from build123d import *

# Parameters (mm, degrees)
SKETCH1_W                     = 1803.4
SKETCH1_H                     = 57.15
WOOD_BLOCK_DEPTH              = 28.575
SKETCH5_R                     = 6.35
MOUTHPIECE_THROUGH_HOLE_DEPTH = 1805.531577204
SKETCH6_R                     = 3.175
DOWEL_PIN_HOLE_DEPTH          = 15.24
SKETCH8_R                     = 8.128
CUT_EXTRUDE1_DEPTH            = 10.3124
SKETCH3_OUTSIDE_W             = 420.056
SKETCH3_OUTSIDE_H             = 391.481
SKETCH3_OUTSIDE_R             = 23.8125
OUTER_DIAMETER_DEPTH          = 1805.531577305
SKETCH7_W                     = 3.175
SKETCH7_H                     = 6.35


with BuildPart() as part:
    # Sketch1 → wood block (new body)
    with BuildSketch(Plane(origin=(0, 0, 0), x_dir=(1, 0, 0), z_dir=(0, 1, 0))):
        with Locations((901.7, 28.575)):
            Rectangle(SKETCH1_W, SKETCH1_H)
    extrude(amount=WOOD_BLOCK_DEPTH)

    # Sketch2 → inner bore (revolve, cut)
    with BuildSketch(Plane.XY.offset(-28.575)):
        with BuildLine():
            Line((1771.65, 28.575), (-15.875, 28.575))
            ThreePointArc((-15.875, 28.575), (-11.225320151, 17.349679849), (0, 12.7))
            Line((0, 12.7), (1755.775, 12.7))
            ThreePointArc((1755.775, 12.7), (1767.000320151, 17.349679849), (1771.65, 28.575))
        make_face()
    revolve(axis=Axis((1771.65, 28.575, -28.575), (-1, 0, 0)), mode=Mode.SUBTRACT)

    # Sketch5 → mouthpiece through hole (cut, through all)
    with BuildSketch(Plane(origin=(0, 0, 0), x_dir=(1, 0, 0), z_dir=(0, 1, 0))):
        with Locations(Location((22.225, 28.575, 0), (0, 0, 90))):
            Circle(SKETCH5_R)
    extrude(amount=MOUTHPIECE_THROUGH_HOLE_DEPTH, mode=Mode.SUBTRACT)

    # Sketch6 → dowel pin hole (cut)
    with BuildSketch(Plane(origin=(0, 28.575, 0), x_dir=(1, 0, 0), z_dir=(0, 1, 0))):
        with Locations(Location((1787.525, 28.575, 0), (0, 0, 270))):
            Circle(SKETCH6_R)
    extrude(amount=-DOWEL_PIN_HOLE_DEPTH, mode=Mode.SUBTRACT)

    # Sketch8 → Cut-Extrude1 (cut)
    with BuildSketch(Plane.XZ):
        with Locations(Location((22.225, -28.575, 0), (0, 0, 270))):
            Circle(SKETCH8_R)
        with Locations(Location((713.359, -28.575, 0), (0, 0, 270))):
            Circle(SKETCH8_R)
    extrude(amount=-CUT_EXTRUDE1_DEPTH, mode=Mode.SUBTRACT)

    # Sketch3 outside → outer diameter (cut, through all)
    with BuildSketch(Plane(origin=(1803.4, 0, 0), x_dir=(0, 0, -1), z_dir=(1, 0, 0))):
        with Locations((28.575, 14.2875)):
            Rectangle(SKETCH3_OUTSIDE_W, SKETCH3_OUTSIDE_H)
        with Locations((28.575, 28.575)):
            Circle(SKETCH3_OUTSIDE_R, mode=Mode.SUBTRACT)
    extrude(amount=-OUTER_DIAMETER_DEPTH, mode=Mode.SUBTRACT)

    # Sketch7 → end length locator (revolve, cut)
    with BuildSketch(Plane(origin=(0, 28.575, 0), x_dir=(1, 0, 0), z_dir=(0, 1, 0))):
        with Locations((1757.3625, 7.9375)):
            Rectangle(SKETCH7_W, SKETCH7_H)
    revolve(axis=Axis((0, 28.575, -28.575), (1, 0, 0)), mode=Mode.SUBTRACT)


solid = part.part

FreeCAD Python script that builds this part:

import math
import FreeCAD as App
import Part
import Sketcher
Q = App.Units.Quantity


def add_polygon(sketch, points):
    """Adds a closed chain of lines whose ends are joined by coincident constraints."""
    first, n = sketch.GeometryCount, len(points)
    for a, b in zip(points, points[1:] + points[:1]):
        sketch.addGeometry(Part.LineSegment(App.Vector(*a, 0), App.Vector(*b, 0)), False)
    for i in range(n):
        sketch.addConstraint(Sketcher.Constraint("Coincident", first + i, 2, first + (i + 1) % n, 1))

doc = App.newDocument("Part")
body = doc.addObject("PartDesign::Body", "Body")

# Sketch on XZ plane
sketch1 = body.newObject("Sketcher::SketchObject", "Sketch")
sketch1.AttachmentSupport = (doc.getObject("XZ_Plane"), [""])
sketch1.MapMode = "FlatFace"
add_polygon(sketch1, [(0, -57), (0, 0), (1803, 0), (1803, -57)])  # lines 0-3
sketch1.addConstraint([
    Sketcher.Constraint("Vertical", 0),
    Sketcher.Constraint("Horizontal", 1),
    Sketcher.Constraint("Vertical", 2),
    Sketcher.Constraint("Horizontal", 3),
    Sketcher.Constraint("Coincident", 0, 2, -1, 1),
    Sketcher.Constraint("DistanceX", 1, 1, 1, 2, Q("71 in")),
    Sketcher.Constraint("DistanceY", 0, 1, 0, 2, Q("2.25 in")),
])
pad1 = body.newObject("PartDesign::Pad", "Pad")
pad1.Profile = sketch1
pad1.Length = Q("1.125 in")
pad1.Reversed = True

# Sketch on XY plane
sketch2 = body.newObject("Sketcher::SketchObject", "Sketch001")
sketch2.AttachmentSupport = (doc.getObject("XY_Plane"), [""])
sketch2.MapMode = "FlatFace"
sketch2.AttachmentOffset = App.Placement(App.Vector(0, 0, -1.125 * 25.4), App.Rotation())
sketch2.addGeometry([
    Part.LineSegment(App.Vector(1772, 29, 0), App.Vector(-16, 29, 0)),
    Part.ArcOfCircle(Part.Circle(App.Vector(0, 29, 0), App.Vector(0, 0, 1), 16), math.radians(-180), math.radians(-90)),
    Part.LineSegment(App.Vector(0, 13, 0), App.Vector(1756, 13, 0)),
    Part.ArcOfCircle(Part.Circle(App.Vector(1756, 29, 0), App.Vector(0, 0, 1), 16), math.radians(-90), math.radians(0)),
], False)
sketch2.addGeometry(Part.LineSegment(App.Vector(1772, 29, 0), App.Vector(-16, 29, 0)), True)  # axis
sketch2.addConstraint([
    Sketcher.Constraint("Coincident", 0, 2, 1, 1),
    Sketcher.Constraint("Tangent", 1, 2, 2, 1),
    Sketcher.Constraint("Tangent", 2, 2, 3, 1),
    Sketcher.Constraint("Coincident", 3, 2, 0, 1),
    Sketcher.Constraint("Horizontal", 0),
    Sketcher.Constraint("Horizontal", 2),
    Sketcher.Constraint("Horizontal", 4),
    Sketcher.Constraint("Coincident", 4, 1, 3, 2),
    Sketcher.Constraint("Equal", 1, 3),
    Sketcher.Constraint("PointOnObject", 1, 3, -2),
    Sketcher.Constraint("Horizontal", 3, 3, 0, 2),
    Sketcher.Constraint("Equal", 0, 4),
    Sketcher.Constraint("Radius", 1, Q("0.625 in")),
    Sketcher.Constraint("DistanceY", -1, 1, 1, 2, Q("0.5 in")),
    Sketcher.Constraint("DistanceX", 0, 2, 0, 1, Q("70.375 in")),
])
groove = body.newObject("PartDesign::Groove", "Groove")
groove.Profile = sketch2
groove.ReferenceAxis = (sketch2, ["Axis0"])
groove.Angle = 360

# Sketch on XZ plane
sketch3 = body.newObject("Sketcher::SketchObject", "Sketch002")
sketch3.AttachmentSupport = (doc.getObject("XZ_Plane"), [""])
sketch3.MapMode = "FlatFace"
sketch3.addGeometry(Part.Circle(App.Vector(22, -29, 0), App.Vector(0, 0, 1), 6), False)
sketch3.addConstraint([
    Sketcher.Constraint("Diameter", 0, Q("0.5 in")),
    Sketcher.Constraint("DistanceX", -1, 1, 0, 3, Q("0.875 in")),
    Sketcher.Constraint("DistanceY", 0, 3, -1, 1, Q("1.125 in")),
])
pocket1 = body.newObject("PartDesign::Pocket", "Pocket")
pocket1.Profile = sketch3
pocket1.Type = "ThroughAll"

# Sketch on XZ plane
sketch4 = body.newObject("Sketcher::SketchObject", "Sketch003")
sketch4.AttachmentSupport = (doc.getObject("XZ_Plane"), [""])
sketch4.MapMode = "FlatFace"
sketch4.AttachmentOffset = App.Placement(App.Vector(0, 0, -1.125 * 25.4), App.Rotation())
sketch4.addGeometry(Part.Circle(App.Vector(1787.5, -28.6, 0), App.Vector(0, 0, 1), 3.2), False)
sketch4.addConstraint([
    Sketcher.Constraint("Diameter", 0, Q("0.25 in")),
    Sketcher.Constraint("DistanceX", -1, 1, 0, 3, Q("70.375 in")),
    Sketcher.Constraint("DistanceY", 0, 3, -1, 1, Q("1.125 in")),
])
pocket2 = body.newObject("PartDesign::Pocket", "Pocket001")
pocket2.Profile = sketch4
pocket2.Length = Q("0.6 in")
pocket2.Reversed = True

# Sketch on XZ plane
sketch5 = body.newObject("Sketcher::SketchObject", "Sketch004")
sketch5.AttachmentSupport = (doc.getObject("XZ_Plane"), [""])
sketch5.MapMode = "FlatFace"
sketch5.addGeometry([
    Part.Circle(App.Vector(22, -29, 0), App.Vector(0, 0, 1), 8),
    Part.Circle(App.Vector(713, -29, 0), App.Vector(0, 0, 1), 8),
], False)
sketch5.addConstraint([
    Sketcher.Constraint("Equal", 0, 1),
    Sketcher.Constraint("Horizontal", 0, 3, 1, 3),
    Sketcher.Constraint("Diameter", 0, Q("0.64 in")),
    Sketcher.Constraint("DistanceX", 0, 3, 1, 3, Q("27.21 in")),
    Sketcher.Constraint("DistanceX", -1, 1, 0, 3, Q("0.875 in")),
    Sketcher.Constraint("DistanceY", 0, 3, -1, 1, Q("1.125 in")),
])
pocket3 = body.newObject("PartDesign::Pocket", "Pocket002")
pocket3.Profile = sketch5
pocket3.Length = Q("0.406 in")

# Sketch on YZ plane
sketch6 = body.newObject("Sketcher::SketchObject", "Sketch005")
sketch6.AttachmentSupport = (doc.getObject("YZ_Plane"), [""])
sketch6.MapMode = "FlatFace"
sketch6.AttachmentOffset = App.Placement(App.Vector(0, 0, 71 * 25.4), App.Rotation())
add_polygon(sketch6, [(210, 181), (-181, 181), (-181, -239), (210, -239)])  # lines 0-3
sketch6.addGeometry(Part.Circle(App.Vector(29, -29, 0), App.Vector(0, 0, 1), 24), False)  # 4
sketch6.addConstraint([
    Sketcher.Constraint("Horizontal", 0),
    Sketcher.Constraint("Vertical", 1),
    Sketcher.Constraint("Horizontal", 2),
    Sketcher.Constraint("Vertical", 3),
    Sketcher.Constraint("Diameter", 4, Q("1.875 in")),
    Sketcher.Constraint("DistanceX", -1, 1, 4, 3, Q("1.125 in")),
    Sketcher.Constraint("DistanceY", 4, 3, -1, 1, Q("1.125 in")),
    Sketcher.Constraint("DistanceX", 0, 2, 0, 1, 391.481),
    Sketcher.Constraint("DistanceY", 1, 2, 1, 1, 420.056),
    Sketcher.Constraint("DistanceX", 0, 2, -1, 1, 181.453),
    Sketcher.Constraint("DistanceY", -1, 1, 0, 2, 181.453),
])
pocket4 = body.newObject("PartDesign::Pocket", "Pocket003")
pocket4.Profile = sketch6
pocket4.Type = "ThroughAll"

# Sketch on XZ plane
sketch7 = body.newObject("Sketcher::SketchObject", "Sketch006")
sketch7.AttachmentSupport = (doc.getObject("XZ_Plane"), [""])
sketch7.MapMode = "FlatFace"
sketch7.AttachmentOffset = App.Placement(App.Vector(0, 0, -1.125 * 25.4), App.Rotation())
add_polygon(sketch7, [(1755.8, -11.1), (1755.8, -4.8), (1759, -4.8), (1759, -11.1)])  # lines 0-3
sketch7.addGeometry(Part.LineSegment(App.Vector(1755.8, -28.6, 0), App.Vector(1759, -28.6, 0)), True)  # axis
sketch7.addConstraint([
    Sketcher.Constraint("Vertical", 0),
    Sketcher.Constraint("Horizontal", 1),
    Sketcher.Constraint("Vertical", 2),
    Sketcher.Constraint("Horizontal", 3),
    Sketcher.Constraint("Horizontal", 4),
    Sketcher.Constraint("Vertical", 3, 2, 4, 1),
    Sketcher.Constraint("Vertical", 2, 2, 4, 2),
    Sketcher.Constraint("DistanceY", 0, 1, 0, 2, Q("0.25 in")),
    Sketcher.Constraint("DistanceX", 1, 1, 1, 2, Q("0.125 in")),
    Sketcher.Constraint("DistanceX", -1, 1, 1, 2, Q("69.25 in")),
    Sketcher.Constraint("DistanceY", 0, 2, -1, 1, Q("0.1875 in")),
    Sketcher.Constraint("DistanceY", 4, 1, -1, 1, Q("1.125 in")),
])
groove2 = body.newObject("PartDesign::Groove", "Groove001")
groove2.Profile = sketch7
groove2.ReferenceAxis = (sketch7, ["Axis0"])
groove2.Angle = 360

doc.recompute()
